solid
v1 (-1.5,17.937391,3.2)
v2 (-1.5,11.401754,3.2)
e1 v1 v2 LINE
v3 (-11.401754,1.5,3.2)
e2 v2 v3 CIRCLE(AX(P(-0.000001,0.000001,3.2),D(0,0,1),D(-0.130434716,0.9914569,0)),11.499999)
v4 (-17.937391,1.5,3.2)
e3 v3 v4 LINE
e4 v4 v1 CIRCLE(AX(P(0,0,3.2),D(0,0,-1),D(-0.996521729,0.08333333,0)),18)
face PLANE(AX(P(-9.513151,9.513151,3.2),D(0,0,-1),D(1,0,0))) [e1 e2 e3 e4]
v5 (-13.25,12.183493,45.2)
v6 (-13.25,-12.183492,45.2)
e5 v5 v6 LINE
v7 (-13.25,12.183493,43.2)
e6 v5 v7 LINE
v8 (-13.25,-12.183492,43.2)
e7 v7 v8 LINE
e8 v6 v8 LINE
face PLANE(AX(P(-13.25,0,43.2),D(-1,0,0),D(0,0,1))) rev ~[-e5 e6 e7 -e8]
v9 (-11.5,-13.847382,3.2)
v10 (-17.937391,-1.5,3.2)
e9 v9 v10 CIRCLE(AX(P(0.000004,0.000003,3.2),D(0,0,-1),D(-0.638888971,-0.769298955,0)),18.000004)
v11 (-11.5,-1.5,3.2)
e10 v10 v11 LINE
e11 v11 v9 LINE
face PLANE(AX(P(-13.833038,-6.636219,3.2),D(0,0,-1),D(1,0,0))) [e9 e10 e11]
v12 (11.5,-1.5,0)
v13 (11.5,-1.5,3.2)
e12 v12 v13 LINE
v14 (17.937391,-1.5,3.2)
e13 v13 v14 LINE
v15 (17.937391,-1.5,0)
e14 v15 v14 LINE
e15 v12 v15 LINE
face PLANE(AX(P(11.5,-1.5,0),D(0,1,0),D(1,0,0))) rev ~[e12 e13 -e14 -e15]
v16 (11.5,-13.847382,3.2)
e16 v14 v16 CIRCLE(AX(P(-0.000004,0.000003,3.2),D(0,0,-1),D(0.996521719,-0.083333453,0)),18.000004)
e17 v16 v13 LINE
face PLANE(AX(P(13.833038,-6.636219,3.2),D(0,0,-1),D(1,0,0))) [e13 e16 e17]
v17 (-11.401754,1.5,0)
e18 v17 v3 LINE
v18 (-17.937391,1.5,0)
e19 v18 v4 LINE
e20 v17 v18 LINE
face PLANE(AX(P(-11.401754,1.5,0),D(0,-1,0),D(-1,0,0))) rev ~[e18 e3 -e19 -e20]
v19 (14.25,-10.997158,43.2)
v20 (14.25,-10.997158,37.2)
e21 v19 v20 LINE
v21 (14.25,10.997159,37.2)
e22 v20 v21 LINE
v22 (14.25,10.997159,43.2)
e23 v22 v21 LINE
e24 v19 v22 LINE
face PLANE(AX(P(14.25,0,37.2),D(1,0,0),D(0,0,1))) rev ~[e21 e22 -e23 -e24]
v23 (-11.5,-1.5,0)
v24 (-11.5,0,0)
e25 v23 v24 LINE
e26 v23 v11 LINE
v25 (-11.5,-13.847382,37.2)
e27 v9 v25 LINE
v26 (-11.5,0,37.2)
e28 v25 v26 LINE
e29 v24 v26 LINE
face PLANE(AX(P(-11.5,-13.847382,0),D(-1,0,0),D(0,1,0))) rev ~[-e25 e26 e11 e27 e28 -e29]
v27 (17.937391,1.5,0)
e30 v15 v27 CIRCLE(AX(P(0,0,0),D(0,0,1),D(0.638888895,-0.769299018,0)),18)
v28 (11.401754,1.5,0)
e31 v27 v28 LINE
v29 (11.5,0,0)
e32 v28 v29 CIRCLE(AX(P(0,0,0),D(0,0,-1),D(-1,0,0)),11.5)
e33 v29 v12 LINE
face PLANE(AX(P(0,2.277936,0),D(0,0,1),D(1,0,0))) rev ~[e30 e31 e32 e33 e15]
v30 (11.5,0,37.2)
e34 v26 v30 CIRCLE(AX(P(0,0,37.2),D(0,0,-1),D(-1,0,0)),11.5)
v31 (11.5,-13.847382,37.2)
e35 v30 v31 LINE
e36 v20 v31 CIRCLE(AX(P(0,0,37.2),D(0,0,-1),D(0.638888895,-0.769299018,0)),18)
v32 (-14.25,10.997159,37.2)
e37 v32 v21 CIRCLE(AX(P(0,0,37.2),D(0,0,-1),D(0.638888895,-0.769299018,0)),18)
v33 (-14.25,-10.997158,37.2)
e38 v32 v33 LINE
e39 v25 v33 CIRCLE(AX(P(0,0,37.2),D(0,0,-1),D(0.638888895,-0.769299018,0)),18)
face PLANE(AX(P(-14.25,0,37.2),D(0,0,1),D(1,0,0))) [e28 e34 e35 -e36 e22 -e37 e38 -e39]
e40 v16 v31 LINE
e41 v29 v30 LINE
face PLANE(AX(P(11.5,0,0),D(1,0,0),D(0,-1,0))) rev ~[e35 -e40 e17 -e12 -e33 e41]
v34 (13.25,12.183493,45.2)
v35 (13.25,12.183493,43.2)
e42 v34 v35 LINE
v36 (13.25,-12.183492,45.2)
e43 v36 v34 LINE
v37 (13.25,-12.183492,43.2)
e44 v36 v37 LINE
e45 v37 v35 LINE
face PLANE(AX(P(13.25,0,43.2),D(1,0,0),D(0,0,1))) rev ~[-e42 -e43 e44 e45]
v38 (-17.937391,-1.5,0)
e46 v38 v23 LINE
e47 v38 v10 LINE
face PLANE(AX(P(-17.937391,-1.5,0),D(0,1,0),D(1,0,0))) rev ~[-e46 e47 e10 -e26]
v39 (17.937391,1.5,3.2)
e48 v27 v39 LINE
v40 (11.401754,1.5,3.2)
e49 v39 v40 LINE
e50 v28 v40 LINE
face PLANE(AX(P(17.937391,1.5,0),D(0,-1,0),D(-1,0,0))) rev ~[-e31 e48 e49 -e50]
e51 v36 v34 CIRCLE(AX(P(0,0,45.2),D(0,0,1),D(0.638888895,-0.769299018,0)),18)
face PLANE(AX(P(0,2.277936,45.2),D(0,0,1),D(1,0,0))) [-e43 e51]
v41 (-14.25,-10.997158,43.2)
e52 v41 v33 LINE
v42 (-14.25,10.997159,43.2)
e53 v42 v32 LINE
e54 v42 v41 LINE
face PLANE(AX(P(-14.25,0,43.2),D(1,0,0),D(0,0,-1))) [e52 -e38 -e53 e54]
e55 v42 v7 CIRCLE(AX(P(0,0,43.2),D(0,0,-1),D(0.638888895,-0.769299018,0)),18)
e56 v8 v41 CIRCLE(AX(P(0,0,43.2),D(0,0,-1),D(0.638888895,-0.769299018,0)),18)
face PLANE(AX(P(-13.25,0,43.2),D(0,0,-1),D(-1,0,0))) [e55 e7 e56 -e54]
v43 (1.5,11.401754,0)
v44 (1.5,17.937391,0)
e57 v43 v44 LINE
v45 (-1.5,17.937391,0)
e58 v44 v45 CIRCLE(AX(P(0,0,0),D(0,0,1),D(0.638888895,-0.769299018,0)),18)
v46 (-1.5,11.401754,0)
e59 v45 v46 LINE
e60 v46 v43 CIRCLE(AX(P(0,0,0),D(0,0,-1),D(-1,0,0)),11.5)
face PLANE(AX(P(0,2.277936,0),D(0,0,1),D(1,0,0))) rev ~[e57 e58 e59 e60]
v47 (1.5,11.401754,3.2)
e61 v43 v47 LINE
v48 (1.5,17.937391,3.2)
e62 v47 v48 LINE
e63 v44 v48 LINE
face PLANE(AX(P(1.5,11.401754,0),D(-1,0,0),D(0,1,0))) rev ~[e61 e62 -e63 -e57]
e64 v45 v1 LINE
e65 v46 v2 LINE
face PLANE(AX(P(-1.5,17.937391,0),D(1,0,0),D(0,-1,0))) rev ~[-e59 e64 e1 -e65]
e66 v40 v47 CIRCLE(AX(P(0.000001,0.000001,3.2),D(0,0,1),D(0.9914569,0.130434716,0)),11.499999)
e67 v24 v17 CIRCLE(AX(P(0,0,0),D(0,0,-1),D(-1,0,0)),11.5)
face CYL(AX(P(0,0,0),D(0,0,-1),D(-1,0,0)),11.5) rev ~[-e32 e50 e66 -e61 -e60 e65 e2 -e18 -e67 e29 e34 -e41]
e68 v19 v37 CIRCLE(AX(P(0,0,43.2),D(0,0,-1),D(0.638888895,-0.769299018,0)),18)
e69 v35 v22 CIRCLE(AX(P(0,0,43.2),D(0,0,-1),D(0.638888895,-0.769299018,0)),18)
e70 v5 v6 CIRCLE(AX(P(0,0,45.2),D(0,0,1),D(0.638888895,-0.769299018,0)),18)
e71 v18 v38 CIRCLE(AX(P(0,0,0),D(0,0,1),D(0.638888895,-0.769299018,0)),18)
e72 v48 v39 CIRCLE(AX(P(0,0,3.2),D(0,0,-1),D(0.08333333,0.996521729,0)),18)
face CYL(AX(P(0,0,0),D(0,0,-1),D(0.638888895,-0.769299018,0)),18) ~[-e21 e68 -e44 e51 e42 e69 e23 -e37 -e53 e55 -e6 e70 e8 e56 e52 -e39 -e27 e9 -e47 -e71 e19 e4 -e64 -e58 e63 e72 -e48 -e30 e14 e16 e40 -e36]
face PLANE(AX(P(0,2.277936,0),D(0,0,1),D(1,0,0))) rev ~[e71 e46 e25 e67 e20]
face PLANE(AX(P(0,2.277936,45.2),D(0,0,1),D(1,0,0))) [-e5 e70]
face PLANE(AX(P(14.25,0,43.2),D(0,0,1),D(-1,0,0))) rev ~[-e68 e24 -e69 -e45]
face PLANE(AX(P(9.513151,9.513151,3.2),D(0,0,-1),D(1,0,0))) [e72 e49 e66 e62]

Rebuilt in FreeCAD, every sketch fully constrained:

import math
import FreeCAD as App
import Part
import Sketcher
from FreeCAD import Vector
Q = App.Units.Quantity


def add_polygon(sketch, points):
    """Adds a closed chain of lines whose ends are joined by coincident constraints."""
    first, n = sketch.GeometryCount, len(points)
    for a, b in zip(points, points[1:] + points[:1]):
        sketch.addGeometry(Part.LineSegment(App.Vector(*a, 0), App.Vector(*b, 0)), False)
    for i in range(n):
        sketch.addConstraint(Sketcher.Constraint("Coincident", first + i, 2, first + (i + 1) % n, 1))

doc = App.newDocument("Part")
body = doc.addObject("PartDesign::Body", "Body")

sketch1 = body.newObject("Sketcher::SketchObject", "Sketch")
sketch1.AttachmentSupport = (doc.getObject("XY_Plane"), [""])
sketch1.MapMode = "FlatFace"
sketch1.addGeometry(Part.LineSegment(Vector(12, 0, 0), Vector(12, -14, 0)), False)
sketch1.addGeometry(Part.ArcOfCircle(Part.Circle(Vector(0, 0, 0), Vector(0, 0, 1), 18), math.radians(-50), math.radians(230)), False)
sketch1.addGeometry(Part.LineSegment(Vector(-12, -14, 0), Vector(-12, 0, 0)), False)
sketch1.addGeometry(Part.ArcOfCircle(Part.Circle(Vector(0, 0, 0), Vector(0, 0, 1), 12), math.radians(0), math.radians(180)), False)
sketch1.addConstraint(Sketcher.Constraint("Coincident", 0, 2, 1, 1))
sketch1.addConstraint(Sketcher.Constraint("Coincident", 1, 2, 2, 1))
sketch1.addConstraint(Sketcher.Constraint("Tangent", 2, 2, 3, 2))
sketch1.addConstraint(Sketcher.Constraint("Tangent", 3, 1, 0, 1))
sketch1.addConstraint(Sketcher.Constraint("Vertical", 0))
sketch1.addConstraint(Sketcher.Constraint("Vertical", 2))
sketch1.addConstraint(Sketcher.Constraint("Coincident", 1, 3, -1, 1))
sketch1.addConstraint(Sketcher.Constraint("Coincident", 3, 3, -1, 1))
sketch1.addConstraint(Sketcher.Constraint("Radius", 1, Q("18 mm")))
sketch1.addConstraint(Sketcher.Constraint("Radius", 3, Q("11.5 mm")))
pad1 = body.newObject("PartDesign::Pad", "Pad")
pad1.Profile = sketch1
pad1.Length = 45.2

sketch2 = body.newObject("Sketcher::SketchObject", "Sketch001")
sketch2.AttachmentSupport = (doc.getObject("XZ_Plane"), [""])
sketch2.MapMode = "FlatFace"
add_polygon(sketch2, [(-14.2, 43.2), (-14.2, 37.2), (14.2, 37.2), (14.2, 43.2), (13.2, 43.2), (13.2, 45.2), (-13.2, 45.2), (-13.2, 43.2)])
sketch2.addConstraint(Sketcher.Constraint("Vertical", 0))
sketch2.addConstraint(Sketcher.Constraint("Horizontal", 1))
sketch2.addConstraint(Sketcher.Constraint("Vertical", 2))
sketch2.addConstraint(Sketcher.Constraint("Horizontal", 3))
sketch2.addConstraint(Sketcher.Constraint("Vertical", 4))
sketch2.addConstraint(Sketcher.Constraint("Horizontal", 5))
sketch2.addConstraint(Sketcher.Constraint("Vertical", 6))
sketch2.addConstraint(Sketcher.Constraint("Horizontal", 7))
sketch2.addConstraint(Sketcher.Constraint("Symmetric", 3, 2, 6, 2, -2))
sketch2.addConstraint(Sketcher.Constraint("Equal", 3, 7))
sketch2.addConstraint(Sketcher.Constraint("DistanceX", 3, 2, 3, 1, Q("1 mm")))
sketch2.addConstraint(Sketcher.Constraint("DistanceY", 0, 2, 0, 1, Q("6 mm")))
sketch2.addConstraint(Sketcher.Constraint("DistanceY", 4, 1, 4, 2, Q("2 mm")))
sketch2.addConstraint(Sketcher.Constraint("DistanceX", 1, 1, 1, 2, Q("28.5 mm")))
sketch2.addConstraint(Sketcher.Constraint("DistanceY", -1, 1, 0, 2, Q("37.2 mm")))
pocket1 = body.newObject("PartDesign::Pocket", "Pocket")
pocket1.Profile = sketch2
pocket1.Type = "ThroughAll"

sketch3 = body.newObject("Sketcher::SketchObject", "Sketch002")
sketch3.AttachmentSupport = (doc.getObject("XZ_Plane"), [""])
sketch3.MapMode = "FlatFace"
add_polygon(sketch3, [(-14.2, 43.2), (-14.2, 37.2), (14.2, 37.2), (14.2, 43.2), (13.2, 43.2), (13.2, 45.2), (-13.2, 45.2), (-13.2, 43.2)])
sketch3.addConstraint(Sketcher.Constraint("Vertical", 0))
sketch3.addConstraint(Sketcher.Constraint("Horizontal", 1))
sketch3.addConstraint(Sketcher.Constraint("Vertical", 2))
sketch3.addConstraint(Sketcher.Constraint("Horizontal", 3))
sketch3.addConstraint(Sketcher.Constraint("Vertical", 4))
sketch3.addConstraint(Sketcher.Constraint("Horizontal", 5))
sketch3.addConstraint(Sketcher.Constraint("Vertical", 6))
sketch3.addConstraint(Sketcher.Constraint("Horizontal", 7))
sketch3.addConstraint(Sketcher.Constraint("Symmetric", 3, 2, 6, 2, -2))
sketch3.addConstraint(Sketcher.Constraint("Equal", 3, 7))
sketch3.addConstraint(Sketcher.Constraint("DistanceX", 3, 2, 3, 1, Q("1 mm")))
sketch3.addConstraint(Sketcher.Constraint("DistanceY", 0, 2, 0, 1, Q("6 mm")))
sketch3.addConstraint(Sketcher.Constraint("DistanceY", 4, 1, 4, 2, Q("2 mm")))
sketch3.addConstraint(Sketcher.Constraint("DistanceX", 1, 1, 1, 2, Q("28.5 mm")))
sketch3.addConstraint(Sketcher.Constraint("DistanceY", -1, 1, 0, 2, Q("37.2 mm")))
pocket2 = body.newObject("PartDesign::Pocket", "Pocket001")
pocket2.Profile = sketch3
pocket2.Type = "ThroughAll"
pocket2.Reversed = True

sketch4 = body.newObject("Sketcher::SketchObject", "Sketch003")
sketch4.AttachmentSupport = (doc.getObject("XY_Plane"), [""])
sketch4.MapMode = "FlatFace"
sketch4.addGeometry(Part.ArcOfCircle(Part.Circle(Vector(0, 0, 0), Vector(0, 0, 1), 18), math.radians(-175), math.radians(-130)), False)
sketch4.addGeometry(Part.LineSegment(Vector(-18, -2, 0), Vector(-12, -2, 0)), False)
sketch4.addGeometry(Part.LineSegment(Vector(-12, -2, 0), Vector(-12, -14, 0)), False)
sketch4.addGeometry(Part.ArcOfCircle(Part.Circle(Vector(0, 0, 0), Vector(0, 0, 1), 18), math.radians(95), math.radians(175)), False)
sketch4.addGeometry(Part.LineSegment(Vector(-2, 18, 0), Vector(-2, 11, 0)), False)
sketch4.addGeometry(Part.ArcOfCircle(Part.Circle(Vector(0, 0, 0), Vector(0, 0, 1), 11), math.radians(97), math.radians(173)), False)
sketch4.addGeometry(Part.LineSegment(Vector(-11, 2, 0), Vector(-18, 2, 0)), False)
sketch4.addGeometry(Part.LineSegment(Vector(2, 11, 0), Vector(2, 18, 0)), False)
sketch4.addGeometry(Part.ArcOfCircle(Part.Circle(Vector(0, 0, 0), Vector(0, 0, 1), 18), math.radians(5), math.radians(85)), False)
sketch4.addGeometry(Part.LineSegment(Vector(18, 2, 0), Vector(11, 2, 0)), False)
sketch4.addGeometry(Part.ArcOfCircle(Part.Circle(Vector(0, 0, 0), Vector(0, 0, 1), 11), math.radians(7), math.radians(83)), False)
sketch4.addGeometry(Part.LineSegment(Vector(12, -2, 0), Vector(18, -2, 0)), False)
sketch4.addGeometry(Part.ArcOfCircle(Part.Circle(Vector(0, 0, 0), Vector(0, 0, 1), 18), math.radians(-50), math.radians(-5)), False)
sketch4.addGeometry(Part.LineSegment(Vector(12, -14, 0), Vector(12, -2, 0)), False)
sketch4.addConstraint(Sketcher.Constraint("Coincident", 0, 1, 1, 1))
sketch4.addConstraint(Sketcher.Constraint("Coincident", 1, 2, 2, 1))
sketch4.addConstraint(Sketcher.Constraint("Coincident", 2, 2, 0, 2))
sketch4.addConstraint(Sketcher.Constraint("Coincident", 3, 1, 4, 1))
sketch4.addConstraint(Sketcher.Constraint("Coincident", 4, 2, 5, 1))
sketch4.addConstraint(Sketcher.Constraint("Coincident", 5, 2, 6, 1))
sketch4.addConstraint(Sketcher.Constraint("Coincident", 6, 2, 3, 2))
sketch4.addConstraint(Sketcher.Constraint("Coincident", 7, 2, 8, 2))
sketch4.addConstraint(Sketcher.Constraint("Coincident", 8, 1, 9, 1))
sketch4.addConstraint(Sketcher.Constraint("Coincident", 9, 2, 10, 1))
sketch4.addConstraint(Sketcher.Constraint("Coincident", 10, 2, 7, 1))
sketch4.addConstraint(Sketcher.Constraint("Coincident", 11, 2, 12, 2))
sketch4.addConstraint(Sketcher.Constraint("Coincident", 12, 1, 13, 1))
sketch4.addConstraint(Sketcher.Constraint("Coincident", 13, 2, 11, 1))
sketch4.addConstraint(Sketcher.Constraint("Horizontal", 1))
sketch4.addConstraint(Sketcher.Constraint("Vertical", 2))
sketch4.addConstraint(Sketcher.Constraint("Vertical", 4))
sketch4.addConstraint(Sketcher.Constraint("Horizontal", 6))
sketch4.addConstraint(Sketcher.Constraint("Vertical", 7))
sketch4.addConstraint(Sketcher.Constraint("Horizontal", 9))
sketch4.addConstraint(Sketcher.Constraint("Horizontal", 11))
sketch4.addConstraint(Sketcher.Constraint("Vertical", 13))
sketch4.addConstraint(Sketcher.Constraint("Coincident", 0, 3, -1, 1))
sketch4.addConstraint(Sketcher.Constraint("Coincident", 3, 3, -1, 1))
sketch4.addConstraint(Sketcher.Constraint("Coincident", 5, 3, -1, 1))
sketch4.addConstraint(Sketcher.Constraint("Coincident", 8, 3, -1, 1))
sketch4.addConstraint(Sketcher.Constraint("Coincident", 10, 3, -1, 1))
sketch4.addConstraint(Sketcher.Constraint("Coincident", 12, 3, -1, 1))
sketch4.addConstraint(Sketcher.Constraint("Equal", 3, 8))
sketch4.addConstraint(Sketcher.Constraint("Equal", 5, 10))
sketch4.addConstraint(Sketcher.Constraint("Equal", 0, 12))
sketch4.addConstraint(Sketcher.Constraint("Symmetric", 0, 1, 8, 1, -1, 1))
sketch4.addConstraint(Sketcher.Constraint("Symmetric", 1, 2, 13, 2, -2))
sketch4.addConstraint(Sketcher.Constraint("Horizontal", 3, 1, 7, 2))
sketch4.addConstraint(Sketcher.Constraint("Horizontal", 6, 2, 8, 1))
sketch4.addConstraint(Sketcher.Constraint("Equal", 9, 4))
sketch4.addConstraint(Sketcher.Constraint("Radius", 3, Q("18 mm")))
sketch4.addConstraint(Sketcher.Constraint("Radius", 5, Q("11.499999 mm")))
sketch4.addConstraint(Sketcher.Constraint("DistanceY", 1, 2, 5, 2, Q("3 mm")))
sketch4.addConstraint(Sketcher.Constraint("DistanceX", 1, 2, -1, 1, Q("11.5 mm")))
pocket3 = body.newObject("PartDesign::Pocket", "Pocket002")
pocket3.Profile = sketch4
pocket3.Length = 3.2
pocket3.Reversed = True

doc.recompute()
